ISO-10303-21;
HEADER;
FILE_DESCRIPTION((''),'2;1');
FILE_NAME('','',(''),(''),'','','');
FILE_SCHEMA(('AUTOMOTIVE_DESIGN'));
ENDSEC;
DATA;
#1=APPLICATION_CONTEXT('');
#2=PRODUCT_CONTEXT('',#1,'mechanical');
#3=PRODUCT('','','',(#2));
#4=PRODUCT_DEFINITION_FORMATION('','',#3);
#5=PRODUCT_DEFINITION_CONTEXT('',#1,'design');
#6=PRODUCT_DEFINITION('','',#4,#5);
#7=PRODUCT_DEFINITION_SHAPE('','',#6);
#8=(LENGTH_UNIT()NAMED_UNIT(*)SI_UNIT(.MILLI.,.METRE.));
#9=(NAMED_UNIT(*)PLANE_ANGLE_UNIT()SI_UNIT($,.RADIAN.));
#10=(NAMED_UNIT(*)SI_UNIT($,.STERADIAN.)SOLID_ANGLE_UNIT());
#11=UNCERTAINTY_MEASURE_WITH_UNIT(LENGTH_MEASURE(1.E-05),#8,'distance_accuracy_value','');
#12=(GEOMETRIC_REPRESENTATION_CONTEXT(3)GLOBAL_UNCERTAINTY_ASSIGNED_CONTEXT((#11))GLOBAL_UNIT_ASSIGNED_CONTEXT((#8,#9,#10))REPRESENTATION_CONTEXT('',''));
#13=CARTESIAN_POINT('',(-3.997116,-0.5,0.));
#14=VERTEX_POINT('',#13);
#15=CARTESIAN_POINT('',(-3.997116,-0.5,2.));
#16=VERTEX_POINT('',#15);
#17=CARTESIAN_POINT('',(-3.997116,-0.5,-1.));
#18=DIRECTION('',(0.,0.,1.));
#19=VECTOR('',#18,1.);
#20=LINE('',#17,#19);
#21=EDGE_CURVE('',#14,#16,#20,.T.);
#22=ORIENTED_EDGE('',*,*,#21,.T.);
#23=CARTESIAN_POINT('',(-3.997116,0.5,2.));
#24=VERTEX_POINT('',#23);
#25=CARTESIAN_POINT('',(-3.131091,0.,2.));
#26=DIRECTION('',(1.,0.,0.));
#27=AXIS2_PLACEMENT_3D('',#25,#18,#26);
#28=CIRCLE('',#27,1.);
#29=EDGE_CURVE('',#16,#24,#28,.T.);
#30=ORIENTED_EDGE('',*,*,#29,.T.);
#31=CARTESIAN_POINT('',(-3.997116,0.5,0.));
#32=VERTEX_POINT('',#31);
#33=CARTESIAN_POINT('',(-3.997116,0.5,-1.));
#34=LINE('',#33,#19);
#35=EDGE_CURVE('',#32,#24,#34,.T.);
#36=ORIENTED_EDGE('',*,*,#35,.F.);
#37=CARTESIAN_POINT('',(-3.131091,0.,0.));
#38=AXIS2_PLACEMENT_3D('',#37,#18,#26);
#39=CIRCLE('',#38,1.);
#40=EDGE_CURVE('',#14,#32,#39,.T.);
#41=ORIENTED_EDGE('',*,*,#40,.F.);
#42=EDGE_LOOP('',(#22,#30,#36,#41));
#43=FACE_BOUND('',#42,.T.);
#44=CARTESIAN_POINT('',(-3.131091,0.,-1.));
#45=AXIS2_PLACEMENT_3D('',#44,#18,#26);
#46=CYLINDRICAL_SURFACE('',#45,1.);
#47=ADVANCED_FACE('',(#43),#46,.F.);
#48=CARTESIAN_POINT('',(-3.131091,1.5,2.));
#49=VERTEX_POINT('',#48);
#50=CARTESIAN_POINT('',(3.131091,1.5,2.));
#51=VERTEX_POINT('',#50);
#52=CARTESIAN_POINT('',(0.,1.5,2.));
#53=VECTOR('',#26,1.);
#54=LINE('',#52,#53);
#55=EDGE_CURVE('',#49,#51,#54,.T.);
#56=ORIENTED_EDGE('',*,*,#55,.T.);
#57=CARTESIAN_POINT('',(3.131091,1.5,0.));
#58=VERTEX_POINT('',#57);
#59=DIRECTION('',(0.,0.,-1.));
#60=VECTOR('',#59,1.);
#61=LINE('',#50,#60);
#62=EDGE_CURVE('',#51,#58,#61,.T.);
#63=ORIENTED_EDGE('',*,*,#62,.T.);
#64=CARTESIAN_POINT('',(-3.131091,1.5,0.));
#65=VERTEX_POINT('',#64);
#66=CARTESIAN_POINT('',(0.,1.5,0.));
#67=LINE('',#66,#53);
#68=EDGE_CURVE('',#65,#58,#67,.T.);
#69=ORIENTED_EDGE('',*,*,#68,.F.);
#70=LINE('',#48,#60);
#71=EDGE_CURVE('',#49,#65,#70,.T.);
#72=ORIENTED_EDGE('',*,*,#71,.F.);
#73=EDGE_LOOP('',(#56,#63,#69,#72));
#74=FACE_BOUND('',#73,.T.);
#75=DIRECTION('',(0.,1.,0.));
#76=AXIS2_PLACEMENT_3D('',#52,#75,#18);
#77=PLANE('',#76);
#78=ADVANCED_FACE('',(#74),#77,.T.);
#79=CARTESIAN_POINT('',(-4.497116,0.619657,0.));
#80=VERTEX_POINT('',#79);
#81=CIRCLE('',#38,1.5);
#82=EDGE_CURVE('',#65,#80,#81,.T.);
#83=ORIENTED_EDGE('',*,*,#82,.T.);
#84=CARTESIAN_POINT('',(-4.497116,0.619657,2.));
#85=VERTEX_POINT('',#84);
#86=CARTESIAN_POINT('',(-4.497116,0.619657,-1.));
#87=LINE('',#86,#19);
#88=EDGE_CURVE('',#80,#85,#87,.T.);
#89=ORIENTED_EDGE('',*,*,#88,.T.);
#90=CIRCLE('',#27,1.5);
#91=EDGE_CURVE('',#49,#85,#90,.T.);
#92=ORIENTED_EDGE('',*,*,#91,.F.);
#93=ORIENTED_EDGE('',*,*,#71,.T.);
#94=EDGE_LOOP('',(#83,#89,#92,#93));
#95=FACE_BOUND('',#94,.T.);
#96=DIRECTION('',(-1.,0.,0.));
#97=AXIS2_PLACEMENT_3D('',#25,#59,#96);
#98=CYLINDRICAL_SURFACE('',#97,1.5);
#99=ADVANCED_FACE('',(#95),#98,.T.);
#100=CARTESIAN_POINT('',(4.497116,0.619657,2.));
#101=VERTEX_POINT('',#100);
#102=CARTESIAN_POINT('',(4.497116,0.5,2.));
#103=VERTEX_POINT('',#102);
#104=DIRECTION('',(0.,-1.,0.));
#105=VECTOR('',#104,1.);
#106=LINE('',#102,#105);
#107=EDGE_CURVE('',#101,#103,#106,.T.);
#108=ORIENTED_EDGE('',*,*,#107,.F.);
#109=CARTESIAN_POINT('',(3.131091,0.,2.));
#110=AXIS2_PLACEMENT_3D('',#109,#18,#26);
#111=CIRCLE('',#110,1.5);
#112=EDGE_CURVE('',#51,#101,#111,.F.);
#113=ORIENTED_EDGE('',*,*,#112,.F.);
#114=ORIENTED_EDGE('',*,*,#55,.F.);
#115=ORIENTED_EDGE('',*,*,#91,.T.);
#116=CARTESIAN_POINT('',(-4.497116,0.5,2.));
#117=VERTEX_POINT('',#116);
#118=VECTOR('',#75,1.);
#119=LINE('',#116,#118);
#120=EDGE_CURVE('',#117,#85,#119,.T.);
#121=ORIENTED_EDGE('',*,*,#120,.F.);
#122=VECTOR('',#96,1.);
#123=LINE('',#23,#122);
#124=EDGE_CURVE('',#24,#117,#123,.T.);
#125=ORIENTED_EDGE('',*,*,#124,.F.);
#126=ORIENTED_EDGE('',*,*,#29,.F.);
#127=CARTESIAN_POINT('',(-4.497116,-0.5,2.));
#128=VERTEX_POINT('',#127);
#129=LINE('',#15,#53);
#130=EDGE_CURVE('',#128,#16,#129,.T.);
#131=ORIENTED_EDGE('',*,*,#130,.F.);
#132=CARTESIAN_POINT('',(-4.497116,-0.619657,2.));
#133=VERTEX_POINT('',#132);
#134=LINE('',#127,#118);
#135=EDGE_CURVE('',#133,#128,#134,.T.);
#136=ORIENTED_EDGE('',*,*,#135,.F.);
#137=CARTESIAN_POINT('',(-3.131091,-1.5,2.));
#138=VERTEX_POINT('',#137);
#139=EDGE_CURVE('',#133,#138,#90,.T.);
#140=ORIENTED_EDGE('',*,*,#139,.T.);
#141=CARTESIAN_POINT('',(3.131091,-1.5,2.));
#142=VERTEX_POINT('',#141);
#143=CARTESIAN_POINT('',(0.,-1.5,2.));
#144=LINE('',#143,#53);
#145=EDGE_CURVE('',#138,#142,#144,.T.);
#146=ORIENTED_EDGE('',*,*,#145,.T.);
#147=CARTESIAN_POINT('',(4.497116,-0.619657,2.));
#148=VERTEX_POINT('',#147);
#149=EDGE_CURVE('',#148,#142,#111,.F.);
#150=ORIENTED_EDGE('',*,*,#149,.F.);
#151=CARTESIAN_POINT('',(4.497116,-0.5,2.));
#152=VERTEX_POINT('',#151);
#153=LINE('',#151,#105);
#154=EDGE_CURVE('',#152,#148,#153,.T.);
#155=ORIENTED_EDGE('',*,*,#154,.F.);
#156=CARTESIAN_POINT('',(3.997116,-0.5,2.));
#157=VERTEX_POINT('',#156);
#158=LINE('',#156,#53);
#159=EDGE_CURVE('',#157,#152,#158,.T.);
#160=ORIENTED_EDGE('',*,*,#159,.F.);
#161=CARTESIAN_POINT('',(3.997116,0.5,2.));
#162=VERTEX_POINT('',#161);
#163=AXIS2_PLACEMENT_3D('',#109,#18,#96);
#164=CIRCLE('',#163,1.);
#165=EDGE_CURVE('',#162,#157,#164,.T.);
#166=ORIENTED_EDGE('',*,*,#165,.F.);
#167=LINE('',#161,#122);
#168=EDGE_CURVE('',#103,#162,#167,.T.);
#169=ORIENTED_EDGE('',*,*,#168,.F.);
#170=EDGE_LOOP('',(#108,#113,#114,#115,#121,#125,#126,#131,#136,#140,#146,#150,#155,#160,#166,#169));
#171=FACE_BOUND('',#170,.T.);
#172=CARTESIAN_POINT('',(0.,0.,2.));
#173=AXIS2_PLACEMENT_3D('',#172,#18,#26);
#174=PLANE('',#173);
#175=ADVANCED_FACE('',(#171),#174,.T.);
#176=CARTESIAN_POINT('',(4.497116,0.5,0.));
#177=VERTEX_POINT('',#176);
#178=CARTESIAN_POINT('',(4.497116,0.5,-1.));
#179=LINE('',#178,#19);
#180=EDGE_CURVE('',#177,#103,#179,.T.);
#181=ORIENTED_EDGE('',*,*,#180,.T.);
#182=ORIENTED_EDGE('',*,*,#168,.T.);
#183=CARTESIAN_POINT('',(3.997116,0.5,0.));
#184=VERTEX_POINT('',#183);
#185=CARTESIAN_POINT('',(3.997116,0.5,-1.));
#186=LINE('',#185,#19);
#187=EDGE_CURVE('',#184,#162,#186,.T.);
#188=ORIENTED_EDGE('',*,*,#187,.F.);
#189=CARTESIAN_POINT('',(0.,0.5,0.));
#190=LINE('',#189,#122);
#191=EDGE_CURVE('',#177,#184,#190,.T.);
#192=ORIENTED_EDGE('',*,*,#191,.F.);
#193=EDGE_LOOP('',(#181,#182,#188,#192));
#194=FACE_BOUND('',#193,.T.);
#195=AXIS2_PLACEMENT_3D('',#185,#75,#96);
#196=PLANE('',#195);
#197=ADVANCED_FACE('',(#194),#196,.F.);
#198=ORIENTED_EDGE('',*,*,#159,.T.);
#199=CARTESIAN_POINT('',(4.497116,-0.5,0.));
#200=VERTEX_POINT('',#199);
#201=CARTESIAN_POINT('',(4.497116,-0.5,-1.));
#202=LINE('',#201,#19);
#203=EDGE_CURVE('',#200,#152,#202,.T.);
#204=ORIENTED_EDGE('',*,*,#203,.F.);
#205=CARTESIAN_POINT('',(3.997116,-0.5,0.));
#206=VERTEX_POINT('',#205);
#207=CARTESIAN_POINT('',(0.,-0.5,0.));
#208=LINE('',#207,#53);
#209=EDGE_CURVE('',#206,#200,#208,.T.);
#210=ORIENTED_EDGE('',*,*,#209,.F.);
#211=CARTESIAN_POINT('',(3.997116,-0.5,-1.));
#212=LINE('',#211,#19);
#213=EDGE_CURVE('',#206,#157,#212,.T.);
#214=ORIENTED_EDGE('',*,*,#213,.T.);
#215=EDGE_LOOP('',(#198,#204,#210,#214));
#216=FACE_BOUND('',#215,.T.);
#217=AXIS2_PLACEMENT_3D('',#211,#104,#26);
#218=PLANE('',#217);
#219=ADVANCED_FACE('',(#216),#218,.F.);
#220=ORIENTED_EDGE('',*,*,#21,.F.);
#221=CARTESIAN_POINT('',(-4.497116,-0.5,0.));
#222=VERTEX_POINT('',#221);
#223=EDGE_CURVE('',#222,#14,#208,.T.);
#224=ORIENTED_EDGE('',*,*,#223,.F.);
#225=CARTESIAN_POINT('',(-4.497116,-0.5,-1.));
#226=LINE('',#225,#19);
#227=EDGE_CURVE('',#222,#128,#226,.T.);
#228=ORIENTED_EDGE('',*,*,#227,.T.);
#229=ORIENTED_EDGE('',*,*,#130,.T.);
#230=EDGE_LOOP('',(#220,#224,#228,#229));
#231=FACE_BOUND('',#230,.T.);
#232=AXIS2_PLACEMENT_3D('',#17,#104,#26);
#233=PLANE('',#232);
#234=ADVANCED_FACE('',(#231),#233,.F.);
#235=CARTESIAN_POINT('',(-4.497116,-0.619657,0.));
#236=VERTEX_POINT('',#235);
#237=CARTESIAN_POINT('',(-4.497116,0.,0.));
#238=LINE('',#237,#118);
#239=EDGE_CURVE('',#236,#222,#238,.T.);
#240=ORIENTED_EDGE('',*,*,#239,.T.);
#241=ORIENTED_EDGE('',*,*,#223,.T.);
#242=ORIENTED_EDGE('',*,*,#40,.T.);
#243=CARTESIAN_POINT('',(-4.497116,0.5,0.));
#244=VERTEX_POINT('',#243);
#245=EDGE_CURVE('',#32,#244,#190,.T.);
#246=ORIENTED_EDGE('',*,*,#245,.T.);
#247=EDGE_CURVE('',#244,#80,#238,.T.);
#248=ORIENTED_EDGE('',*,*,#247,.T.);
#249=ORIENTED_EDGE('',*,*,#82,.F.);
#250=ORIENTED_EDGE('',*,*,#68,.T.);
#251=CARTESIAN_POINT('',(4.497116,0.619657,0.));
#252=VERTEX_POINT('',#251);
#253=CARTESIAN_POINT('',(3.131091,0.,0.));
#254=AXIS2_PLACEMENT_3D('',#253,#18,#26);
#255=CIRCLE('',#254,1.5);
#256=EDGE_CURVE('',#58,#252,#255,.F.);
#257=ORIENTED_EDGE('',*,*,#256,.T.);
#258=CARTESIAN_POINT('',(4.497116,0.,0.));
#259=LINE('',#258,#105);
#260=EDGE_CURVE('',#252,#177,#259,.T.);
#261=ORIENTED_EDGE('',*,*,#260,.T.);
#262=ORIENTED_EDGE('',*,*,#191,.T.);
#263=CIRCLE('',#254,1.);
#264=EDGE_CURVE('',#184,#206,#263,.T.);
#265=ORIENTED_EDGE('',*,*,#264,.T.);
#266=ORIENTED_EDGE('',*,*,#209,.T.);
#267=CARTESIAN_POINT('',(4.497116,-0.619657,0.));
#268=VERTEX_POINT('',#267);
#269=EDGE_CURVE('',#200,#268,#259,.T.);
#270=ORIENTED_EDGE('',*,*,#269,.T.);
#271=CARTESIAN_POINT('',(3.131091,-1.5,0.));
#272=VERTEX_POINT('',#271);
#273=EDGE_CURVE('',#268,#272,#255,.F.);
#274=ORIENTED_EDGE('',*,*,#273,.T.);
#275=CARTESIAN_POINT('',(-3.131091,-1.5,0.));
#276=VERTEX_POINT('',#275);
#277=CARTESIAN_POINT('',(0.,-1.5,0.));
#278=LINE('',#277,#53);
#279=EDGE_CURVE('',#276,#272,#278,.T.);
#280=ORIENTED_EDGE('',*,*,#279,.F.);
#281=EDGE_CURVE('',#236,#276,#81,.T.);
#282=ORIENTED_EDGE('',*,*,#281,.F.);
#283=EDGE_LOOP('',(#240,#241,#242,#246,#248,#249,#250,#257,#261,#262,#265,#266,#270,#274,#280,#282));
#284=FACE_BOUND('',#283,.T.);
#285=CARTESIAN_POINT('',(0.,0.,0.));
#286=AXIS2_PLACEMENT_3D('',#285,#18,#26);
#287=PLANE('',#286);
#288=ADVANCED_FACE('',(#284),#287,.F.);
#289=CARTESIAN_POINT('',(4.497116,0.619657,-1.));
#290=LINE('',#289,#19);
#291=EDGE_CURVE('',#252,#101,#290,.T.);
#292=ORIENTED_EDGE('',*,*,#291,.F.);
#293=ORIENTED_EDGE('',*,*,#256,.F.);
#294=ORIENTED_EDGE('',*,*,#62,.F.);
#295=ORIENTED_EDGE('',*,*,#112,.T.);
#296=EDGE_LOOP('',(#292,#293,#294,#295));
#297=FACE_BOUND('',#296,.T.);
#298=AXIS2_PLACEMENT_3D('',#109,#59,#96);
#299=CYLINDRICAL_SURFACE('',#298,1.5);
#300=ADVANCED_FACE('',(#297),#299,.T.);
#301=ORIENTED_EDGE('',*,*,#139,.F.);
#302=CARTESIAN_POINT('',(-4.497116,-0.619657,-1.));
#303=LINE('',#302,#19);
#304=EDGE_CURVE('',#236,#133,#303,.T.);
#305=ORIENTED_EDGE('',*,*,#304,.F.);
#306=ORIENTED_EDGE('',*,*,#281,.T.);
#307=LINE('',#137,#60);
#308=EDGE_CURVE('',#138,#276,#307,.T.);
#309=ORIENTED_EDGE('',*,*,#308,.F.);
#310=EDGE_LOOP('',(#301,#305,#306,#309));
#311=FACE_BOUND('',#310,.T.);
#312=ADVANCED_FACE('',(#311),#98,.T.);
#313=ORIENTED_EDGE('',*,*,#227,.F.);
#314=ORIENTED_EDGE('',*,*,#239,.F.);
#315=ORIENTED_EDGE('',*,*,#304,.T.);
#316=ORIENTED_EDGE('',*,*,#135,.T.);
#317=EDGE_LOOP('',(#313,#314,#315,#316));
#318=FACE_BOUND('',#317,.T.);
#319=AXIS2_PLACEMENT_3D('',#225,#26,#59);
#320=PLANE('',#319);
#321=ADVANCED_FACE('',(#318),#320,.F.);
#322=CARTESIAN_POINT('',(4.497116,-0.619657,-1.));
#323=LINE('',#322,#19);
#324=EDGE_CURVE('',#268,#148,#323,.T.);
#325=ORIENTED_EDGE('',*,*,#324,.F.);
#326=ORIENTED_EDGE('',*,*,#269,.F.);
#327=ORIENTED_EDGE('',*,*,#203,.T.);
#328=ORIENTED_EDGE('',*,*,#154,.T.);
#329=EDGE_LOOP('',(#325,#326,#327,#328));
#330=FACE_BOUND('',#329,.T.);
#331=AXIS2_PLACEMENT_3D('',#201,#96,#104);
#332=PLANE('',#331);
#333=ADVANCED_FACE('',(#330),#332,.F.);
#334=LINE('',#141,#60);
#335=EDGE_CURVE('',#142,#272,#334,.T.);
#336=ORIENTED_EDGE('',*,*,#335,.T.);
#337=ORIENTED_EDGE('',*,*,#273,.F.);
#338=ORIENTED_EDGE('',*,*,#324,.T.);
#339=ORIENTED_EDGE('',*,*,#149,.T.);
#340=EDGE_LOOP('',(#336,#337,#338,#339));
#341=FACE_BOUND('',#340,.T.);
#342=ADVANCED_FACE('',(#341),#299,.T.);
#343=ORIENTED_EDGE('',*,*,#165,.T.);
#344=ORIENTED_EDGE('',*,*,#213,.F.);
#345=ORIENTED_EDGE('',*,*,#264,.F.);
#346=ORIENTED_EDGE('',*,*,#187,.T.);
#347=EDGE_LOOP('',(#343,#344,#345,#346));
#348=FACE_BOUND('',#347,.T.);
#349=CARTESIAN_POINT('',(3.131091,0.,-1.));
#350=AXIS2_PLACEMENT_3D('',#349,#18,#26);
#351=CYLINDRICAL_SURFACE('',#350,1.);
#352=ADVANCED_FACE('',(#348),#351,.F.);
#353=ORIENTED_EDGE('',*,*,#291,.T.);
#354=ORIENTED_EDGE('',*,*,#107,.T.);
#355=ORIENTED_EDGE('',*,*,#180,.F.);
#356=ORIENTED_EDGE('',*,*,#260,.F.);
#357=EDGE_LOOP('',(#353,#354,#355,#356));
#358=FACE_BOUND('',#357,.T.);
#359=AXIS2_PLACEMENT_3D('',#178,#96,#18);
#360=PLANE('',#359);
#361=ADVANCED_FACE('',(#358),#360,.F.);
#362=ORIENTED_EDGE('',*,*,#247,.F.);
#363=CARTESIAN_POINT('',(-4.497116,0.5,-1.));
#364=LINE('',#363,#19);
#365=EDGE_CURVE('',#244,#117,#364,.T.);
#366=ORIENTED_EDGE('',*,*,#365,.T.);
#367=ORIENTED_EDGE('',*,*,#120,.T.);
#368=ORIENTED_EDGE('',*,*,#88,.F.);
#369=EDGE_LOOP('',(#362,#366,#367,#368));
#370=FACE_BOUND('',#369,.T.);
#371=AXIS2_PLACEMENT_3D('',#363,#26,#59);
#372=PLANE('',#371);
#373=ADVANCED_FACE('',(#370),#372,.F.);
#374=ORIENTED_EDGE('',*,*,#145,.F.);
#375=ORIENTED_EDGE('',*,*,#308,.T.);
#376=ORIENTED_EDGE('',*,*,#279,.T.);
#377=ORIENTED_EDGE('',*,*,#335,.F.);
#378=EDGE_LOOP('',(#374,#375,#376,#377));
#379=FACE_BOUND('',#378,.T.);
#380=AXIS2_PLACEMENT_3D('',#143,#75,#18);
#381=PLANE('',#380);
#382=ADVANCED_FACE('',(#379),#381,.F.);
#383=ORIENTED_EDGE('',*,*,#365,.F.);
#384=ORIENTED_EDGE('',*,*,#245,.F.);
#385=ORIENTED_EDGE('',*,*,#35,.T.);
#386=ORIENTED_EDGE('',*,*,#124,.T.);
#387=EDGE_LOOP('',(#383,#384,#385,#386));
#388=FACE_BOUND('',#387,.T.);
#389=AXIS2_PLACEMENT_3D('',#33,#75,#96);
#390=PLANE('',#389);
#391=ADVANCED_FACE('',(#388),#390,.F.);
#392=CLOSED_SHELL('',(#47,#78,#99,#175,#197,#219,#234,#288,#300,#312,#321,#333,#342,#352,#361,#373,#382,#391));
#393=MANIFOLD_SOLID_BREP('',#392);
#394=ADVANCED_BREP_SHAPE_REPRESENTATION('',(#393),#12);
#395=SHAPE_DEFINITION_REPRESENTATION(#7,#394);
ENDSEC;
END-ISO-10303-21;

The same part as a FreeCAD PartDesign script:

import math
import FreeCAD as App
import Part
import Sketcher
from FreeCAD import Vector
Q = App.Units.Quantity

doc = App.newDocument("Part")
body = doc.addObject("PartDesign::Body", "Body")

sketch1 = doc.addObject("Sketcher::SketchObject", "Sketch")
body.addObject(sketch1)
sketch1.AttachmentSupport = (doc.XY_Plane, [""])
sketch1.MapMode = "FlatFace"
sketch1.addGeometry([
    Part.ArcOfCircle(Part.Circle(Vector(-3.1, 0, 0), Vector(0, 0, 1), 1.5), math.radians(90), math.radians(270)),
    Part.LineSegment(Vector(-3.1, -1.5, 0), Vector(3.1, -1.5, 0)),
    Part.ArcOfCircle(Part.Circle(Vector(3.1, 0, 0), Vector(0, 0, 1), 1.5), math.radians(-90), math.radians(90)),
    Part.LineSegment(Vector(3.1, 1.5, 0), Vector(-3.1, 1.5, 0)),
], False)
sketch1.addConstraint([
    Sketcher.Constraint("Tangent", 0, 2, 1, 1),
    Sketcher.Constraint("Tangent", 1, 2, 2, 1),
    Sketcher.Constraint("Tangent", 2, 2, 3, 1),
    Sketcher.Constraint("Tangent", 3, 2, 0, 1),
    Sketcher.Constraint("Horizontal", 1),
    Sketcher.Constraint("Horizontal", 3),
    Sketcher.Constraint("Symmetric", 0, 3, 2, 3, -1, 1),
    Sketcher.Constraint("Radius", 0, Q("1.5 mm")),
    Sketcher.Constraint("DistanceX", 1, 1, 1, 2, Q("6.262182 mm")),
])
pad1 = doc.addObject("PartDesign::Pad", "Pad")
body.addObject(pad1)
pad1.Profile = sketch1
pad1.Length = 2

sketch2 = doc.addObject("Sketcher::SketchObject", "Sketch001")
body.addObject(sketch2)
sketch2.AttachmentSupport = (doc.XY_Plane, [""])
sketch2.MapMode = "FlatFace"
sketch2.AttachmentOffset = App.Placement(Vector(0, 0, 2), App.Rotation())
sketch2.addGeometry([
    Part.LineSegment(Vector(-4.5, -0.5, 0), Vector(-4, -0.5, 0)),
    Part.ArcOfCircle(Part.Circle(Vector(-3.13, 0, 0), Vector(0, 0, 1), 1), math.radians(-150), math.radians(150)),
    Part.LineSegment(Vector(-4, 0.5, 0), Vector(-4.5, 0.5, 0)),
    Part.LineSegment(Vector(-4.5, 0.5, 0), Vector(-4.5, 0.62, 0)),
    Part.ArcOfCircle(Part.Circle(Vector(-3.13, 0, 0), Vector(0, 0, 1), 1.5), math.radians(156), math.radians(204)),
    Part.LineSegment(Vector(-4.5, -0.62, 0), Vector(-4.5, -0.5, 0)),
    Part.LineSegment(Vector(4.5, 0.5, 0), Vector(4, 0.5, 0)),
    Part.ArcOfCircle(Part.Circle(Vector(3.13, 0, 0), Vector(0, 0, 1), 1), math.radians(30), math.radians(330)),
    Part.LineSegment(Vector(4, -0.5, 0), Vector(4.5, -0.5, 0)),
    Part.LineSegment(Vector(4.5, -0.5, 0), Vector(4.5, -0.62, 0)),
    Part.ArcOfCircle(Part.Circle(Vector(3.13, 0, 0), Vector(0, 0, 1), 1.5), math.radians(-24), math.radians(24)),
    Part.LineSegment(Vector(4.5, 0.62, 0), Vector(4.5, 0.5, 0)),
], False)
sketch2.addConstraint([
    Sketcher.Constraint("Coincident", 0, 2, 1, 1),
    Sketcher.Constraint("Coincident", 1, 2, 2, 1),
    Sketcher.Constraint("Coincident", 2, 2, 3, 1),
    Sketcher.Constraint("Coincident", 3, 2, 4, 1),
    Sketcher.Constraint("Coincident", 4, 2, 5, 1),
    Sketcher.Constraint("Coincident", 5, 2, 0, 1),
    Sketcher.Constraint("Coincident", 6, 2, 7, 1),
    Sketcher.Constraint("Coincident", 7, 2, 8, 1),
    Sketcher.Constraint("Coincident", 8, 2, 9, 1),
    Sketcher.Constraint("Coincident", 9, 2, 10, 1),
    Sketcher.Constraint("Coincident", 10, 2, 11, 1),
    Sketcher.Constraint("Coincident", 11, 2, 6, 1),
    Sketcher.Constraint("Horizontal", 0),
    Sketcher.Constraint("Horizontal", 2),
    Sketcher.Constraint("Vertical", 3),
    Sketcher.Constraint("Vertical", 5),
    Sketcher.Constraint("Horizontal", 6),
    Sketcher.Constraint("Horizontal", 8),
    Sketcher.Constraint("Vertical", 9),
    Sketcher.Constraint("Vertical", 11),
    Sketcher.Constraint("Coincident", 4, 3, 1, 3),
    Sketcher.Constraint("Coincident", 10, 3, 7, 3),
    Sketcher.Constraint("Equal", 1, 7),
    Sketcher.Constraint("Equal", 4, 10),
    Sketcher.Constraint("Symmetric", 1, 3, 7, 3, -1, 1),
    Sketcher.Constraint("Symmetric", 2, 2, 8, 2, -1, 1),
    Sketcher.Constraint("Symmetric", 5, 2, 11, 2, -1, 1),
    Sketcher.Constraint("Symmetric", 1, 2, 6, 2, -2),
    Sketcher.Constraint("Horizontal", 4, 2, 9, 2),
    Sketcher.Constraint("Radius", 1, Q("1 mm")),
    Sketcher.Constraint("Radius", 4, Q("1.5 mm")),
    Sketcher.Constraint("DistanceX", 0, 1, 0, 2, Q("0.5 mm")),
    Sketcher.Constraint("DistanceY", 0, 2, 1, 2, Q("1 mm")),
    Sketcher.Constraint("DistanceX", 1, 3, -1, 1, Q("3.131091 mm")),
])
pocket1 = doc.addObject("PartDesign::Pocket", "Pocket")
body.addObject(pocket1)
pocket1.Profile = sketch2
pocket1.Length = 3

doc.recompute()
